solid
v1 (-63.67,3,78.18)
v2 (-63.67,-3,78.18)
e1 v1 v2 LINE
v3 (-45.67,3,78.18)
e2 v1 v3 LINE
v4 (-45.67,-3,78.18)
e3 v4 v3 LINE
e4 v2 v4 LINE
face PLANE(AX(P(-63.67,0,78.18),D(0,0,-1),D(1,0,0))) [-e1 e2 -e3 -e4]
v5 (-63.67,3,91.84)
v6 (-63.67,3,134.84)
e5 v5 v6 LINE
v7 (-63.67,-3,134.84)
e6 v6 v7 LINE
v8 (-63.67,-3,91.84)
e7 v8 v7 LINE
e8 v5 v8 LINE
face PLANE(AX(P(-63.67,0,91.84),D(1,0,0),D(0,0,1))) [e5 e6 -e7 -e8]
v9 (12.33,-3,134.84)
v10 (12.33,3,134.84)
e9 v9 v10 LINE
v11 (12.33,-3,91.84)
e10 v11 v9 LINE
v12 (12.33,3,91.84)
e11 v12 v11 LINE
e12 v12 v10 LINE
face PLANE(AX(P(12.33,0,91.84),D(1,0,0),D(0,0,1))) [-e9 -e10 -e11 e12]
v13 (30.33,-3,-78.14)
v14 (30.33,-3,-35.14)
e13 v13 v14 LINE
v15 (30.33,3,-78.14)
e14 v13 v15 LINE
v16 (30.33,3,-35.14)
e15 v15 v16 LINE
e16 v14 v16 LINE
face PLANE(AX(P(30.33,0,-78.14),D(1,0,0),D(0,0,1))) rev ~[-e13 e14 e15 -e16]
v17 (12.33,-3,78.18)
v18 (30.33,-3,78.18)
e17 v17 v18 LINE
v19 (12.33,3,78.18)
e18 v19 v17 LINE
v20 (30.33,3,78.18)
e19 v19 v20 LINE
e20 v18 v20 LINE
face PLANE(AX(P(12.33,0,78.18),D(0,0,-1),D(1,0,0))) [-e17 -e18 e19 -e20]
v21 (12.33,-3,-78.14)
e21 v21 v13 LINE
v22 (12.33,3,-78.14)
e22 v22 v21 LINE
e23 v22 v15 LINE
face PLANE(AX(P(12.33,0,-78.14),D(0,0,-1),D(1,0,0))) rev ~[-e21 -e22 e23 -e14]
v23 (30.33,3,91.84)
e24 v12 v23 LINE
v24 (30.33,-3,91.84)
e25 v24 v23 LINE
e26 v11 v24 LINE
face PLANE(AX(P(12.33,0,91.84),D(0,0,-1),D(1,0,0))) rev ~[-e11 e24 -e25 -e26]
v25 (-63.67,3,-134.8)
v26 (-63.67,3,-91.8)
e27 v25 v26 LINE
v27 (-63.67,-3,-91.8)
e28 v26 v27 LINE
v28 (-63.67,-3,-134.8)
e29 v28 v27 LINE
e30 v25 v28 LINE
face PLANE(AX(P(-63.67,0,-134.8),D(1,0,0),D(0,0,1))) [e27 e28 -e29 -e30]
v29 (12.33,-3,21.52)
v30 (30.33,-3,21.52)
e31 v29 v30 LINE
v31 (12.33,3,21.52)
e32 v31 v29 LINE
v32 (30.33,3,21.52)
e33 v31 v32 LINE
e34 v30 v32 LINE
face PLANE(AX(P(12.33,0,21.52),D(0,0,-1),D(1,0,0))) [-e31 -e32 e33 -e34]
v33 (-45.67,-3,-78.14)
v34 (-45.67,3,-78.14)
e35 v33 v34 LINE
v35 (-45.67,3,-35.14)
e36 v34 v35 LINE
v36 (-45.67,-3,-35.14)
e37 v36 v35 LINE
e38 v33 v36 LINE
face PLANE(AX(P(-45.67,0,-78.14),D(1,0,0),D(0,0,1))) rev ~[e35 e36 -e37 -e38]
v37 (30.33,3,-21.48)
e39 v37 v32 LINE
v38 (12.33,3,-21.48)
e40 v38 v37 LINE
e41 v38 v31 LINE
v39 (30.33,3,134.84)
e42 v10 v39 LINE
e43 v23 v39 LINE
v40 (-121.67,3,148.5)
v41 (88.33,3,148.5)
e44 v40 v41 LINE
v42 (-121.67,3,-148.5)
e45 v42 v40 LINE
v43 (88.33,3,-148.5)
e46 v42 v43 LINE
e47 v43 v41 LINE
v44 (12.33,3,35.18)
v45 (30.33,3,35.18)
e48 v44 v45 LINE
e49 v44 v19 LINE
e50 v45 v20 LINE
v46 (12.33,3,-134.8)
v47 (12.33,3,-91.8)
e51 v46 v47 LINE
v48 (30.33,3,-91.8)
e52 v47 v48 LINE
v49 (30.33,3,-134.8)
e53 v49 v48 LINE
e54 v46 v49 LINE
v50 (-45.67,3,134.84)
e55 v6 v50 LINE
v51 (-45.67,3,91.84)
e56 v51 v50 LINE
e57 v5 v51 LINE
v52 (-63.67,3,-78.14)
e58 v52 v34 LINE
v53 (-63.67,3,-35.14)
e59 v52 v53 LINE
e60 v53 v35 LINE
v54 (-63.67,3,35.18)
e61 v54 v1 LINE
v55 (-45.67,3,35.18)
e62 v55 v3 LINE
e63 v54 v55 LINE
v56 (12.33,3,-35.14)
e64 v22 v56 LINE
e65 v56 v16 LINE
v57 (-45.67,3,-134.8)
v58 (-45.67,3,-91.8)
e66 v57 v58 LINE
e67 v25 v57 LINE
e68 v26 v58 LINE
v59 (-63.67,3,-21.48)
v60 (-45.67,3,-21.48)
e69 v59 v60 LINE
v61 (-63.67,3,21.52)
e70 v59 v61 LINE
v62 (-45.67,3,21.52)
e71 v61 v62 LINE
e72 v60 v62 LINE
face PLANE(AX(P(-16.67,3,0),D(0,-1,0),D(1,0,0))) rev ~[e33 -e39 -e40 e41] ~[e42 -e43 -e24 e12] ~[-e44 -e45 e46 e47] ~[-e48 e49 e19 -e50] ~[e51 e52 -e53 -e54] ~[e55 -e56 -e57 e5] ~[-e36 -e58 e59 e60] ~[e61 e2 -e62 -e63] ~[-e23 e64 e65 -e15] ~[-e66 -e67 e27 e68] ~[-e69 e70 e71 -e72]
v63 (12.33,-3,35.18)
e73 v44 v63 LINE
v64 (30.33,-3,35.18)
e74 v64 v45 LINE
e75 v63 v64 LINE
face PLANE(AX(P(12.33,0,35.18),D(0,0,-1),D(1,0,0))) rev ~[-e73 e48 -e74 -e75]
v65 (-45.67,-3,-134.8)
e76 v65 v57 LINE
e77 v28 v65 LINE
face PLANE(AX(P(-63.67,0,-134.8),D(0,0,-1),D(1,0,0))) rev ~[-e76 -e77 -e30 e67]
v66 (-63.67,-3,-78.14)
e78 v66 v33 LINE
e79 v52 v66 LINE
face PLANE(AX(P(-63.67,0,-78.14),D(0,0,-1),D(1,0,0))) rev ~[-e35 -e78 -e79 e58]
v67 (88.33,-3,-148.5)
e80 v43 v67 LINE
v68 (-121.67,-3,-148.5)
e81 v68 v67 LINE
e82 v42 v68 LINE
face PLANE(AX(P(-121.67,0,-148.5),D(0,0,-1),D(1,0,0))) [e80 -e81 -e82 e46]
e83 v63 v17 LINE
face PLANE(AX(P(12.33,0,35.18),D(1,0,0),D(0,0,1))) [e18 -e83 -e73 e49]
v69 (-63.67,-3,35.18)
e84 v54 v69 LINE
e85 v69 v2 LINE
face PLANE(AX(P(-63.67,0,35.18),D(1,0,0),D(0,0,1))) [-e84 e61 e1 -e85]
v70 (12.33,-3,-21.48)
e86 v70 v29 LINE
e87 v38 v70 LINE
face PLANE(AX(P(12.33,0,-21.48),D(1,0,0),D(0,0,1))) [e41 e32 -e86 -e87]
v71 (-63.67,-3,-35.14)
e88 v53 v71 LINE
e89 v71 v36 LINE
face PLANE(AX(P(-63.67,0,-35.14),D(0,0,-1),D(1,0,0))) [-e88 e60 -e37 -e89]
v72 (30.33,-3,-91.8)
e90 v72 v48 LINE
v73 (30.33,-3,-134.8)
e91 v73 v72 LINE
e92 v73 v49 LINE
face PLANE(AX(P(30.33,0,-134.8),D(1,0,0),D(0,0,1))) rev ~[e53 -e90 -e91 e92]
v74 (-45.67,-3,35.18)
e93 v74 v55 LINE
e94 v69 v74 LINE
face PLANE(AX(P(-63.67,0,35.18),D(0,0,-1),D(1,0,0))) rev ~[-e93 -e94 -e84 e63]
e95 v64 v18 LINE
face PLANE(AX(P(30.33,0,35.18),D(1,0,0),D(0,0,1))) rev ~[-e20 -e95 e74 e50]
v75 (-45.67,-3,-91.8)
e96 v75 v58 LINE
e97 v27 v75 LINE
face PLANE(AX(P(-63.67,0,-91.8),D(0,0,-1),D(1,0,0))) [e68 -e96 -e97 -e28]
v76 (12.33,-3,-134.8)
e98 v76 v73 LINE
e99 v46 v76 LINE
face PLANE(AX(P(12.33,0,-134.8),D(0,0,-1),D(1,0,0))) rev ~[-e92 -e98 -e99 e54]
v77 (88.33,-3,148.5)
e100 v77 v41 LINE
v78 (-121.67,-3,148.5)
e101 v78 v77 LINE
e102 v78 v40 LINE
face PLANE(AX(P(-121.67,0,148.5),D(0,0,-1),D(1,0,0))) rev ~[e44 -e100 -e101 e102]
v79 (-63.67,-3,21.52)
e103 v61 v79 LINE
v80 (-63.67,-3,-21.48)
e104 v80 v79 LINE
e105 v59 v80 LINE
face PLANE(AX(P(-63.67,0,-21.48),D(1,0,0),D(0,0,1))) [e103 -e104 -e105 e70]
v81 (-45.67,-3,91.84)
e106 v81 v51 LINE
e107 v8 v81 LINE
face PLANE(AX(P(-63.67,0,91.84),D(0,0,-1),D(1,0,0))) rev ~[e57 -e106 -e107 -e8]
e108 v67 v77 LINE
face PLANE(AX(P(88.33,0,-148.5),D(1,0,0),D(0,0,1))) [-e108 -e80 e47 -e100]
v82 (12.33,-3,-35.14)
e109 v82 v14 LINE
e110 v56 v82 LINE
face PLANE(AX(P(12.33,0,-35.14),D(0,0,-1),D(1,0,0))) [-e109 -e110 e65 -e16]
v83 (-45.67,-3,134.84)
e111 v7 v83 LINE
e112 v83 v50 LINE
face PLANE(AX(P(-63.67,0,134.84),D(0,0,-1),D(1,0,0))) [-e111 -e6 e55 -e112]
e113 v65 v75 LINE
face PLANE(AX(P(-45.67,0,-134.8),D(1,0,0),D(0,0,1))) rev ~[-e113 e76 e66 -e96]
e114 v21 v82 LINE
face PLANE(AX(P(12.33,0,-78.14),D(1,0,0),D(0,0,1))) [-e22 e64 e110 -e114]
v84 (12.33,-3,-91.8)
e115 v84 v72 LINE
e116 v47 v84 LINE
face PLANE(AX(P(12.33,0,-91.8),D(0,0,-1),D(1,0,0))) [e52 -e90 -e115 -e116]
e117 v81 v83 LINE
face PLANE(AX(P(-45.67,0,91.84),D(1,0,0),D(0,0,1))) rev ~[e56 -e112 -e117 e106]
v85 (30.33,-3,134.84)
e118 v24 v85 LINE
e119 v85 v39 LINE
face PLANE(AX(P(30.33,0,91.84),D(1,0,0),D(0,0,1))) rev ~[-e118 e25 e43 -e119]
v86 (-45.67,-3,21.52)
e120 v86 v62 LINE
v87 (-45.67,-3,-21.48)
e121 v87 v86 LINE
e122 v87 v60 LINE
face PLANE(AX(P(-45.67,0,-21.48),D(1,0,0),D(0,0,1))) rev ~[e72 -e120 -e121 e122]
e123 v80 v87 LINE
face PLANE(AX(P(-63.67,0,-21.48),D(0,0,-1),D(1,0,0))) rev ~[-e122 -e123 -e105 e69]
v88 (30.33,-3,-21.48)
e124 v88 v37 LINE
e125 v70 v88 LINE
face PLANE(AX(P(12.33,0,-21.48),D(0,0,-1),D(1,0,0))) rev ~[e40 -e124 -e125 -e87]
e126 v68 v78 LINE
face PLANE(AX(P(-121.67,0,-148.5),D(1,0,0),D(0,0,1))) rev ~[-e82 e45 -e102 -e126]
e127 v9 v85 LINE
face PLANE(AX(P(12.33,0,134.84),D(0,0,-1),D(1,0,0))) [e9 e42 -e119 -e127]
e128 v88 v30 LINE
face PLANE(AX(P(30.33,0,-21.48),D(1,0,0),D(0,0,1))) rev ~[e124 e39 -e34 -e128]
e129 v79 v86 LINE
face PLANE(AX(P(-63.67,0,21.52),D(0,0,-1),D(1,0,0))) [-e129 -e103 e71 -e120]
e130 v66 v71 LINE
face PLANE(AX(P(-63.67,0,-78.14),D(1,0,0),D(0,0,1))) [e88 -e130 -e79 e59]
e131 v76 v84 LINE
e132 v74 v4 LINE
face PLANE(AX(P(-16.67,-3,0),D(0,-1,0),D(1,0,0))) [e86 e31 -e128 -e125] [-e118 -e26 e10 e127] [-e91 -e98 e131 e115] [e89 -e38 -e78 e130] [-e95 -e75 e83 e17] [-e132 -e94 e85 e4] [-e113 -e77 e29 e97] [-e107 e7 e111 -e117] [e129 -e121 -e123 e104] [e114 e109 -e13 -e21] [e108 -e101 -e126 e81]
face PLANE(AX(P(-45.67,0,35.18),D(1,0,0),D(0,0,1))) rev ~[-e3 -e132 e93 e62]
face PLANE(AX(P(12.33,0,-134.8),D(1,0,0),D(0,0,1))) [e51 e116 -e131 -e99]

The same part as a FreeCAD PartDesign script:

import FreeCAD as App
import Part
import Sketcher

V = App.Vector


def add_polygon(sketch, points):
    """Adds a closed chain of lines whose ends are joined by coincident constraints."""
    first, n = sketch.GeometryCount, len(points)
    for a, b in zip(points, points[1:] + points[:1]):
        sketch.addGeometry(Part.LineSegment(App.Vector(*a, 0), App.Vector(*b, 0)), False)
    for i in range(n):
        sketch.addConstraint(Sketcher.Constraint("Coincident", first + i, 2, first + (i + 1) % n, 1))

doc = App.newDocument("Part")
body = doc.addObject("PartDesign::Body", "Body")

# Sketch on XZ plane
sketch1 = body.newObject("Sketcher::SketchObject", "Sketch")
sketch1.AttachmentSupport = (doc.getObject("XZ_Plane"), [""])
sketch1.MapMode = "FlatFace"
add_polygon(sketch1, [(-122, 148), (-122, -148), (88, -148), (88, 148)])  # lines 0-3
add_polygon(sketch1, [(-46, -135), (-64, -135), (-64, -92), (-46, -92)])  # lines 4-7
add_polygon(sketch1, [(-46, -78), (-64, -78), (-64, -35), (-46, -35)])  # lines 8-11
add_polygon(sketch1, [(30, -135), (12, -135), (12, -92), (30, -92)])  # lines 12-15
add_polygon(sketch1, [(30, -78), (12, -78), (12, -35), (30, -35)])  # lines 16-19
add_polygon(sketch1, [(-46, -21), (-64, -21), (-64, 22), (-46, 22)])  # lines 20-23
add_polygon(sketch1, [(-46, 35), (-64, 35), (-64, 78), (-46, 78)])  # lines 24-27
add_polygon(sketch1, [(-46, 92), (-64, 92), (-64, 135), (-46, 135)])  # lines 28-31
add_polygon(sketch1, [(30, -21), (12, -21), (12, 22), (30, 22)])  # lines 32-35
add_polygon(sketch1, [(30, 35), (12, 35), (12, 78), (30, 78)])  # lines 36-39
add_polygon(sketch1, [(30, 92), (12, 92), (12, 135), (30, 135)])  # lines 40-43
sketch1.addConstraint([
    Sketcher.Constraint("Vertical", 0),
    Sketcher.Constraint("Horizontal", 1),
    Sketcher.Constraint("Vertical", 2),
    Sketcher.Constraint("Horizontal", 3),
    Sketcher.Constraint("Horizontal", 4),
    Sketcher.Constraint("Vertical", 5),
    Sketcher.Constraint("Horizontal", 6),
    Sketcher.Constraint("Vertical", 7),
    Sketcher.Constraint("Horizontal", 8),
    Sketcher.Constraint("Vertical", 9),
    Sketcher.Constraint("Horizontal", 10),
    Sketcher.Constraint("Vertical", 11),
    Sketcher.Constraint("Horizontal", 12),
    Sketcher.Constraint("Vertical", 13),
    Sketcher.Constraint("Horizontal", 14),
    Sketcher.Constraint("Vertical", 15),
    Sketcher.Constraint("Horizontal", 16),
    Sketcher.Constraint("Vertical", 17),
    Sketcher.Constraint("Horizontal", 18),
    Sketcher.Constraint("Vertical", 19),
    Sketcher.Constraint("Horizontal", 20),
    Sketcher.Constraint("Vertical", 21),
    Sketcher.Constraint("Horizontal", 22),
    Sketcher.Constraint("Vertical", 23),
    Sketcher.Constraint("Horizontal", 24),
    Sketcher.Constraint("Vertical", 25),
    Sketcher.Constraint("Horizontal", 26),
    Sketcher.Constraint("Vertical", 27),
    Sketcher.Constraint("Horizontal", 28),
    Sketcher.Constraint("Vertical", 29),
    Sketcher.Constraint("Horizontal", 30),
    Sketcher.Constraint("Vertical", 31),
    Sketcher.Constraint("Horizontal", 32),
    Sketcher.Constraint("Vertical", 33),
    Sketcher.Constraint("Horizontal", 34),
    Sketcher.Constraint("Vertical", 35),
    Sketcher.Constraint("Horizontal", 36),
    Sketcher.Constraint("Vertical", 37),
    Sketcher.Constraint("Horizontal", 38),
    Sketcher.Constraint("Vertical", 39),
    Sketcher.Constraint("Horizontal", 40),
    Sketcher.Constraint("Vertical", 41),
    Sketcher.Constraint("Horizontal", 42),
    Sketcher.Constraint("Vertical", 43),
    Sketcher.Constraint("Horizontal", 7, 2, 12, 2),
    Sketcher.Constraint("Horizontal", 6, 2, 13, 2),
    Sketcher.Constraint("Horizontal", 11, 2, 16, 2),
    Sketcher.Constraint("Horizontal", 10, 2, 17, 2),
    Sketcher.Constraint("Horizontal", 23, 2, 32, 2),
    Sketcher.Constraint("Horizontal", 22, 2, 33, 2),
    Sketcher.Constraint("Horizontal", 27, 2, 36, 2),
    Sketcher.Constraint("Horizontal", 26, 2, 37, 2),
    Sketcher.Constraint("Horizontal", 31, 2, 40, 2),
    Sketcher.Constraint("Horizontal", 30, 2, 41, 2),
    Sketcher.Constraint("Vertical", 5, 2, 8, 2),
    Sketcher.Constraint("Vertical", 7, 2, 10, 2),
    Sketcher.Constraint("Vertical", 13, 2, 16, 2),
    Sketcher.Constraint("Vertical", 15, 2, 18, 2),
    Sketcher.Constraint("Vertical", 9, 2, 20, 2),
    Sketcher.Constraint("Vertical", 11, 2, 22, 2),
    Sketcher.Constraint("Vertical", 21, 2, 24, 2),
    Sketcher.Constraint("Vertical", 23, 2, 26, 2),
    Sketcher.Constraint("Vertical", 25, 2, 28, 2),
    Sketcher.Constraint("Vertical", 27, 2, 30, 2),
    Sketcher.Constraint("Vertical", 17, 2, 32, 2),
    Sketcher.Constraint("Vertical", 19, 2, 34, 2),
    Sketcher.Constraint("Vertical", 33, 2, 36, 2),
    Sketcher.Constraint("Vertical", 35, 2, 38, 2),
    Sketcher.Constraint("Vertical", 37, 2, 40, 2),
    Sketcher.Constraint("Vertical", 39, 2, 42, 2),
    Sketcher.Constraint("Equal", 10, 12),
    Sketcher.Constraint("Equal", 7, 9),
    Sketcher.Constraint("Equal", 19, 21),
    Sketcher.Constraint("Equal", 23, 25),
    Sketcher.Constraint("Equal", 27, 29),
    Sketcher.Constraint("DistanceX", 1, 1, 1, 2, 210.0),
    Sketcher.Constraint("DistanceX", 4, 2, 4, 1, 18.0),
    Sketcher.Constraint("DistanceY", 0, 2, 0, 1, 297.0),
    Sketcher.Constraint("DistanceY", 5, 1, 5, 2, 43.0),
    Sketcher.Constraint("DistanceX", 0, 2, 4, 2, 58.0),
    Sketcher.Constraint("DistanceX", 7, 2, 12, 2, 58.0),
    Sketcher.Constraint("DistanceY", 0, 2, -1, 1, 148.5),
    Sketcher.Constraint("DistanceY", 4, 2, -1, 1, 134.8),
    Sketcher.Constraint("DistanceX", 0, 2, -1, 1, 121.67),
    Sketcher.Constraint("DistanceY", 8, 2, -1, 1, 78.14),
    Sketcher.Constraint("DistanceY", 20, 2, -1, 1, 21.48),
    Sketcher.Constraint("DistanceY", -1, 1, 24, 2, 35.18),
    Sketcher.Constraint("DistanceY", -1, 1, 28, 2, 91.84),
])
pad1 = body.newObject("PartDesign::Pad", "Pad")
pad1.Profile = sketch1
pad1.Length = 6
pad1.Midplane = True

doc.recompute()
